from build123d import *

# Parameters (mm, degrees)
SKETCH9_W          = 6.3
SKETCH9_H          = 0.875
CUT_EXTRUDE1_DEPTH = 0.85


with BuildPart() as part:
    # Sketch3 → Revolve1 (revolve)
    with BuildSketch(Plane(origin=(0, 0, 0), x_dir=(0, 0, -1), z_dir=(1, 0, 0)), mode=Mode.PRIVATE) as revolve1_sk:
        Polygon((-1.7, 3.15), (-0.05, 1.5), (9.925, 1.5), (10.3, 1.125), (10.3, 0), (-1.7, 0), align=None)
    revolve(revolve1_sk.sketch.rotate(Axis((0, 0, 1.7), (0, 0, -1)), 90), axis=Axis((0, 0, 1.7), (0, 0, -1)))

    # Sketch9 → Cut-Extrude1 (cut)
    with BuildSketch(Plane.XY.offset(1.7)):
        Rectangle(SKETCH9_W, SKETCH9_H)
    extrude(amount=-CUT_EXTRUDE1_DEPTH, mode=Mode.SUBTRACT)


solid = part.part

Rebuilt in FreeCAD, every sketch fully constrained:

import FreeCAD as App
import Part
import Sketcher
Q = App.Units.Quantity

doc = App.newDocument("Part")
body = doc.addObject("PartDesign::Body", "Body")

# Sketch on YZ plane
sketch1 = doc.addObject("Sketcher::SketchObject", "Sketch")
body.addObject(sketch1)
sketch1.AttachmentSupport = (doc.YZ_Plane, [""])
sketch1.MapMode = "FlatFace"
sketch1.addGeometry([
    Part.LineSegment(App.Vector(1.5, 0.05, 0), App.Vector(3.15, 1.7, 0)),  # 0
    Part.LineSegment(App.Vector(3.15, 1.7, 0), App.Vector(0, 1.7, 0)),  # 1
    Part.LineSegment(App.Vector(0, 1.7, 0), App.Vector(0, -10.3, 0)),  # 2
    Part.LineSegment(App.Vector(0, -10.3, 0), App.Vector(1.125, -10.3, 0)),  # 3
    Part.LineSegment(App.Vector(1.125, -10.3, 0), App.Vector(1.5, -9.925, 0)),  # 4
    Part.LineSegment(App.Vector(1.5, -9.925, 0), App.Vector(1.5, 0.05, 0)),  # 5
], False)
sketch1.addConstraint([
    Sketcher.Constraint("Coincident", 0, 2, 1, 1),
    Sketcher.Constraint("Coincident", 1, 2, 2, 1),
    Sketcher.Constraint("Coincident", 2, 2, 3, 1),
    Sketcher.Constraint("Coincident", 3, 2, 4, 1),
    Sketcher.Constraint("Coincident", 4, 2, 5, 1),
    Sketcher.Constraint("Coincident", 5, 2, 0, 1),
    Sketcher.Constraint("Horizontal", 1),
    Sketcher.Constraint("Vertical", 2),
    Sketcher.Constraint("Horizontal", 3),
    Sketcher.Constraint("Vertical", 5),
    Sketcher.Constraint("PointOnObject", 1, 2, -2),
    Sketcher.Constraint("Parallel", 0, 4),
    Sketcher.Constraint("DistanceY", 2, 2, 2, 1, 12.0),
    Sketcher.Constraint("Angle", 0, Q("45 deg")),
    Sketcher.Constraint("DistanceX", 1, 2, 1, 1, 3.15),
    Sketcher.Constraint("DistanceY", -1, 1, 0, 2, 1.7),
    Sketcher.Constraint("DistanceX", -1, 1, 4, 2, 1.5),
    Sketcher.Constraint("DistanceX", 3, 1, 3, 2, 1.125),
])
revolution = doc.addObject("PartDesign::Revolution", "Revolution")
body.addObject(revolution)
revolution.Profile = sketch1
revolution.ReferenceAxis = (sketch1, ["V_Axis"])
revolution.Angle = 360

# Sketch on XY plane
sketch2 = doc.addObject("Sketcher::SketchObject", "Sketch001")
body.addObject(sketch2)
sketch2.AttachmentSupport = (doc.XY_Plane, [""])
sketch2.MapMode = "FlatFace"
sketch2.AttachmentOffset = App.Placement(App.Vector(0, 0, 1.7), App.Rotation())
sketch2.addGeometry([
    Part.LineSegment(App.Vector(-3.15, 0.4375, 0), App.Vector(-3.15, -0.4375, 0)),
    Part.LineSegment(App.Vector(-3.15, -0.4375, 0), App.Vector(3.15, -0.4375, 0)),
    Part.LineSegment(App.Vector(3.15, -0.4375, 0), App.Vector(3.15, 0.4375, 0)),
    Part.LineSegment(App.Vector(3.15, 0.4375, 0), App.Vector(-3.15, 0.4375, 0)),
], False)
sketch2.addConstraint([
    Sketcher.Constraint("Coincident", 0, 2, 1, 1),
    Sketcher.Constraint("Coincident", 1, 2, 2, 1),
    Sketcher.Constraint("Coincident", 2, 2, 3, 1),
    Sketcher.Constraint("Coincident", 3, 2, 0, 1),
    Sketcher.Constraint("Vertical", 0),
    Sketcher.Constraint("Horizontal", 1),
    Sketcher.Constraint("Vertical", 2),
    Sketcher.Constraint("Horizontal", 3),
    Sketcher.Constraint("Symmetric", 0, 2, 2, 2, -1, 1),
    Sketcher.Constraint("DistanceX", 1, 1, 1, 2, 6.3),
    Sketcher.Constraint("DistanceY", 0, 2, 0, 1, 0.875),
])
pocket1 = doc.addObject("PartDesign::Pocket", "Pocket")
body.addObject(pocket1)
pocket1.Profile = sketch2
pocket1.Length = 0.85

doc.recompute()
